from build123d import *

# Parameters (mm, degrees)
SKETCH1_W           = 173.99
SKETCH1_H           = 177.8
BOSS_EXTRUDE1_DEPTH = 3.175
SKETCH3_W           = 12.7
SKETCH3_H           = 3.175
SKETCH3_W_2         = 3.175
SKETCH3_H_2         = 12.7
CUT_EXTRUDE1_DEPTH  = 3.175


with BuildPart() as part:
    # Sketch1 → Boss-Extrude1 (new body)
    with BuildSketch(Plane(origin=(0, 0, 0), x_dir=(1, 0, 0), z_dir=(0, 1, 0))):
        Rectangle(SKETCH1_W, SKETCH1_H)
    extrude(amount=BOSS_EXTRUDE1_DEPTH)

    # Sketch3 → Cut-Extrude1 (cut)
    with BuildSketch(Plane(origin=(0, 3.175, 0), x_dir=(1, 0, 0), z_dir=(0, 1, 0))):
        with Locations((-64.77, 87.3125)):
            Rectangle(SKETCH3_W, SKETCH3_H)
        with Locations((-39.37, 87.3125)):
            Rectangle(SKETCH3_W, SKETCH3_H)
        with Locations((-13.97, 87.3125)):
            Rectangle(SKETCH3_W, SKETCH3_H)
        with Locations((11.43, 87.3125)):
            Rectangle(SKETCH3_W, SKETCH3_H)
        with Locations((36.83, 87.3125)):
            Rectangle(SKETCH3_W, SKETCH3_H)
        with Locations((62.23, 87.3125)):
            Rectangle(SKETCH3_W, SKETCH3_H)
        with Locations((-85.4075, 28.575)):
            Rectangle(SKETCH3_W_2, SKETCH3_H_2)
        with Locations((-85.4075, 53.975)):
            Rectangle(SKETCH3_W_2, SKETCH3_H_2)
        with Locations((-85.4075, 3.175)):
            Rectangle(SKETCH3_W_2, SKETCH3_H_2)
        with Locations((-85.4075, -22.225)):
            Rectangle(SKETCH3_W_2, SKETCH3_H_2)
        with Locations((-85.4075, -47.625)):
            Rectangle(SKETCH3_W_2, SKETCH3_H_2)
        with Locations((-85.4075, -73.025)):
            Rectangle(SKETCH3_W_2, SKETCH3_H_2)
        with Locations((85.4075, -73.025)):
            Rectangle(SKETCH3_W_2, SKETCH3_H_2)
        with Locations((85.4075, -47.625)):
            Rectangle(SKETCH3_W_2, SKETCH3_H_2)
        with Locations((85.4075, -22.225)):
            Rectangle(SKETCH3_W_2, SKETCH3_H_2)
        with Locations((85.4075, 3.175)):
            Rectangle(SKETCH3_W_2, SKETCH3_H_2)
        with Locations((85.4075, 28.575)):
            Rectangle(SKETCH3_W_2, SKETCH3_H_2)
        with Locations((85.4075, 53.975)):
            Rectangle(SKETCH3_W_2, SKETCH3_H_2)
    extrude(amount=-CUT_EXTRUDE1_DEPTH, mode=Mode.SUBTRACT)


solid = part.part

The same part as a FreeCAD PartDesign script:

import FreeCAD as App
import Part
import Sketcher

V = App.Vector
Q = App.Units.Quantity


def add_polygon(sketch, points):
    """Adds a closed chain of lines whose ends are joined by coincident constraints."""
    first, n = sketch.GeometryCount, len(points)
    for a, b in zip(points, points[1:] + points[:1]):
        sketch.addGeometry(Part.LineSegment(App.Vector(*a, 0), App.Vector(*b, 0)), False)
    for i in range(n):
        sketch.addConstraint(Sketcher.Constraint("Coincident", first + i, 2, first + (i + 1) % n, 1))

doc = App.newDocument("Part")
params = doc.addObject("Spreadsheet::Sheet", "Params")
for row, (alias, value) in enumerate([
    ("sketch1_height", "7 in"),
    ("sketch1_width", "6.85 in"),
    ("pad1_length", "0.125 in"),
    ("sketch2_width", "0.5 in"),
    ("sketch2_width2", "0.125 in"),
    ("pocket1_length", "0.125 in"),
], start=1):
    params.set(f"A{row}", alias)
    params.set(f"B{row}", "=" + value)
    params.setAlias(f"B{row}", alias)

body = doc.addObject("PartDesign::Body", "Body")

# Sketch on XZ plane
sketch1 = doc.addObject("Sketcher::SketchObject", "Sketch")
body.addObject(sketch1)
sketch1.AttachmentSupport = (doc.XZ_Plane, [""])
sketch1.MapMode = "FlatFace"
add_polygon(sketch1, [(-86.995, -88.9), (-86.995, 88.9), (86.995, 88.9), (86.995, -88.9)])  # lines 0-3
sketch1.addConstraint([
    Sketcher.Constraint("Vertical", 0),
    Sketcher.Constraint("Horizontal", 1),
    Sketcher.Constraint("Vertical", 2),
    Sketcher.Constraint("Horizontal", 3),
    Sketcher.Constraint("Symmetric", 0, 2, 2, 2, -1, 1),
    Sketcher.Constraint("DistanceY", 0, 1, 0, 2, Q("7 in")),
    Sketcher.Constraint("DistanceX", 1, 1, 1, 2, Q("6.85 in")),
])
sketch1.setExpression("Constraints[9]", "Params.sketch1_height")
sketch1.setExpression("Constraints[10]", "Params.sketch1_width")
pad1 = doc.addObject("PartDesign::Pad", "Pad")
body.addObject(pad1)
pad1.Profile = sketch1
pad1.setExpression("Length", "Params.pad1_length")
pad1.Reversed = True

# Sketch on XZ plane
sketch2 = doc.addObject("Sketcher::SketchObject", "Sketch001")
body.addObject(sketch2)
sketch2.AttachmentSupport = (doc.XZ_Plane, [""])
sketch2.MapMode = "FlatFace"
sketch2.AttachmentOffset = App.Placement(V(0, 0, -0.125 * 25.4), App.Rotation())
add_polygon(sketch2, [(-71.12, -88.9), (-71.12, -85.725), (-58.42, -85.725), (-58.42, -88.9)])  # lines 0-3
add_polygon(sketch2, [(-45.72, -88.9), (-45.72, -85.725), (-33.02, -85.725), (-33.02, -88.9)])  # lines 4-7
add_polygon(sketch2, [(-20.32, -88.9), (-20.32, -85.725), (-7.62, -85.725), (-7.62, -88.9)])  # lines 8-11
add_polygon(sketch2, [(5.08, -88.9), (5.08, -85.725), (17.78, -85.725), (17.78, -88.9)])  # lines 12-15
add_polygon(sketch2, [(30.48, -88.9), (30.48, -85.725), (43.18, -85.725), (43.18, -88.9)])  # lines 16-19
add_polygon(sketch2, [(55.88, -88.9), (55.88, -85.725), (68.58, -85.725), (68.58, -88.9)])  # lines 20-23
add_polygon(sketch2, [(-86.995, -34.925), (-86.995, -22.225), (-83.82, -22.225), (-83.82, -34.925)])  # lines 24-27
add_polygon(sketch2, [(-86.995, -60.325), (-86.995, -47.625), (-83.82, -47.625), (-83.82, -60.325)])  # lines 28-31
add_polygon(sketch2, [(-86.995, -9.525), (-86.995, 3.175), (-83.82, 3.175), (-83.82, -9.525)])  # lines 32-35
add_polygon(sketch2, [(-86.995, 15.875), (-86.995, 28.575), (-83.82, 28.575), (-83.82, 15.875)])  # lines 36-39
add_polygon(sketch2, [(-86.995, 41.275), (-86.995, 53.975), (-83.82, 53.975), (-83.82, 41.275)])  # lines 40-43
add_polygon(sketch2, [(-86.995, 66.675), (-86.995, 79.375), (-83.82, 79.375), (-83.82, 66.675)])  # lines 44-47
add_polygon(sketch2, [(83.82, 66.675), (83.82, 79.375), (86.995, 79.375), (86.995, 66.675)])  # lines 48-51
add_polygon(sketch2, [(83.82, 41.275), (83.82, 53.975), (86.995, 53.975), (86.995, 41.275)])  # lines 52-55
add_polygon(sketch2, [(83.82, 15.875), (83.82, 28.575), (86.995, 28.575), (86.995, 15.875)])  # lines 56-59
add_polygon(sketch2, [(83.82, -9.525), (83.82, 3.175), (86.995, 3.175), (86.995, -9.525)])  # lines 60-63
add_polygon(sketch2, [(83.82, -34.925), (83.82, -22.225), (86.995, -22.225), (86.995, -34.925)])  # lines 64-67
add_polygon(sketch2, [(83.82, -60.325), (83.82, -47.625), (86.995, -47.625), (86.995, -60.325)])  # lines 68-71
sketch2.addConstraint([
    Sketcher.Constraint("Vertical", 0),
    Sketcher.Constraint("Horizontal", 1),
    Sketcher.Constraint("Vertical", 2),
    Sketcher.Constraint("Horizontal", 3),
    Sketcher.Constraint("Vertical", 4),
    Sketcher.Constraint("Horizontal", 5),
    Sketcher.Constraint("Vertical", 6),
    Sketcher.Constraint("Horizontal", 7),
    Sketcher.Constraint("Vertical", 8),
    Sketcher.Constraint("Horizontal", 9),
    Sketcher.Constraint("Vertical", 10),
    Sketcher.Constraint("Horizontal", 11),
    Sketcher.Constraint("Vertical", 12),
    Sketcher.Constraint("Horizontal", 13),
    Sketcher.Constraint("Vertical", 14),
    Sketcher.Constraint("Horizontal", 15),
    Sketcher.Constraint("Vertical", 16),
    Sketcher.Constraint("Horizontal", 17),
    Sketcher.Constraint("Vertical", 18),
    Sketcher.Constraint("Horizontal", 19),
    Sketcher.Constraint("Vertical", 20),
    Sketcher.Constraint("Horizontal", 21),
    Sketcher.Constraint("Vertical", 22),
    Sketcher.Constraint("Horizontal", 23),
    Sketcher.Constraint("Vertical", 24),
    Sketcher.Constraint("Horizontal", 25),
    Sketcher.Constraint("Vertical", 26),
    Sketcher.Constraint("Horizontal", 27),
    Sketcher.Constraint("Vertical", 28),
    Sketcher.Constraint("Horizontal", 29),
    Sketcher.Constraint("Vertical", 30),
    Sketcher.Constraint("Horizontal", 31),
    Sketcher.Constraint("Vertical", 32),
    Sketcher.Constraint("Horizontal", 33),
    Sketcher.Constraint("Vertical", 34),
    Sketcher.Constraint("Horizontal", 35),
    Sketcher.Constraint("Vertical", 36),
    Sketcher.Constraint("Horizontal", 37),
    Sketcher.Constraint("Vertical", 38),
    Sketcher.Constraint("Horizontal", 39),
    Sketcher.Constraint("Vertical", 40),
    Sketcher.Constraint("Horizontal", 41),
    Sketcher.Constraint("Vertical", 42),
    Sketcher.Constraint("Horizontal", 43),
    Sketcher.Constraint("Vertical", 44),
    Sketcher.Constraint("Horizontal", 45),
    Sketcher.Constraint("Vertical", 46),
    Sketcher.Constraint("Horizontal", 47),
    Sketcher.Constraint("Vertical", 48),
    Sketcher.Constraint("Horizontal", 49),
    Sketcher.Constraint("Vertical", 50),
    Sketcher.Constraint("Horizontal", 51),
    Sketcher.Constraint("Vertical", 52),
    Sketcher.Constraint("Horizontal", 53),
    Sketcher.Constraint("Vertical", 54),
    Sketcher.Constraint("Horizontal", 55),
    Sketcher.Constraint("Vertical", 56),
    Sketcher.Constraint("Horizontal", 57),
    Sketcher.Constraint("Vertical", 58),
    Sketcher.Constraint("Horizontal", 59),
    Sketcher.Constraint("Vertical", 60),
    Sketcher.Constraint("Horizontal", 61),
    Sketcher.Constraint("Vertical", 62),
    Sketcher.Constraint("Horizontal", 63),
    Sketcher.Constraint("Vertical", 64),
    Sketcher.Constraint("Horizontal", 65),
    Sketcher.Constraint("Vertical", 66),
    Sketcher.Constraint("Horizontal", 67),
    Sketcher.Constraint("Vertical", 68),
    Sketcher.Constraint("Horizontal", 69),
    Sketcher.Constraint("Vertical", 70),
    Sketcher.Constraint("Horizontal", 71),
    Sketcher.Constraint("Symmetric", 45, 2, 48, 2, -2),
    Sketcher.Constraint("Symmetric", 47, 2, 50, 2, -2),
    Sketcher.Constraint("Symmetric", 41, 2, 52, 2, -2),
    Sketcher.Constraint("Symmetric", 43, 2, 54, 2, -2),
    Sketcher.Constraint("Symmetric", 37, 2, 56, 2, -2),
    Sketcher.Constraint("Symmetric", 39, 2, 58, 2, -2),
    Sketcher.Constraint("Symmetric", 33, 2, 60, 2, -2),
    Sketcher.Constraint("Symmetric", 35, 2, 62, 2, -2),
    Sketcher.Constraint("Symmetric", 25, 2, 64, 2, -2),
    Sketcher.Constraint("Symmetric", 27, 2, 66, 2, -2),
    Sketcher.Constraint("Symmetric", 29, 2, 68, 2, -2),
    Sketcher.Constraint("Symmetric", 31, 2, 70, 2, -2),
    Sketcher.Constraint("Horizontal", 1, 2, 4, 2),
    Sketcher.Constraint("Horizontal", 3, 2, 6, 2),
    Sketcher.Constraint("Horizontal", 5, 2, 8, 2),
    Sketcher.Constraint("Horizontal", 7, 2, 10, 2),
    Sketcher.Constraint("Horizontal", 9, 2, 12, 2),
    Sketcher.Constraint("Horizontal", 11, 2, 14, 2),
    Sketcher.Constraint("Horizontal", 13, 2, 16, 2),
    Sketcher.Constraint("Horizontal", 15, 2, 18, 2),
    Sketcher.Constraint("Horizontal", 17, 2, 20, 2),
    Sketcher.Constraint("Horizontal", 19, 2, 22, 2),
    Sketcher.Constraint("Vertical", 27, 2, 28, 2),
    Sketcher.Constraint("Vertical", 26, 2, 29, 2),
    Sketcher.Constraint("Vertical", 31, 2, 32, 2),
    Sketcher.Constraint("Vertical", 30, 2, 33, 2),
    Sketcher.Constraint("Vertical", 35, 2, 36, 2),
    Sketcher.Constraint("Vertical", 34, 2, 37, 2),
    Sketcher.Constraint("Vertical", 39, 2, 40, 2),
    Sketcher.Constraint("Vertical", 38, 2, 41, 2),
    Sketcher.Constraint("Vertical", 43, 2, 44, 2),
    Sketcher.Constraint("Vertical", 42, 2, 45, 2),
    Sketcher.Constraint("Equal", 3, 5),
    Sketcher.Constraint("Equal", 7, 9),
    Sketcher.Constraint("Equal", 11, 13),
    Sketcher.Constraint("Equal", 15, 17),
    Sketcher.Constraint("Equal", 19, 21),
    Sketcher.Constraint("Equal", 71, 0),
    Sketcher.Constraint("Equal", 23, 24),
    Sketcher.Constraint("Equal", 26, 28),
    Sketcher.Constraint("Equal", 30, 32),
    Sketcher.Constraint("Equal", 34, 36),
    Sketcher.Constraint("Equal", 38, 40),
    Sketcher.Constraint("Equal", 42, 44),
    Sketcher.Constraint("DistanceX", 1, 1, 1, 2, Q("0.5 in")),
    Sketcher.Constraint("DistanceX", 0, 2, -1, 1, Q("2.8 in")),
    Sketcher.Constraint("DistanceY", 2, 2, -1, 1, Q("3.5 in")),
    Sketcher.Constraint("DistanceX", 4, 2, -1, 1, Q("1.8 in")),
    Sketcher.Constraint("DistanceX", 8, 2, -1, 1, Q("0.8 in")),
    Sketcher.Constraint("DistanceX", -1, 1, 12, 2, Q("0.2 in")),
    Sketcher.Constraint("DistanceX", -1, 1, 16, 2, Q("1.2 in")),
    Sketcher.Constraint("DistanceX", -1, 1, 20, 2, Q("2.2 in")),
    Sketcher.Constraint("DistanceX", 25, 2, -1, 1, Q("3.3 in")),
    Sketcher.Constraint("DistanceX", 25, 1, 25, 2, Q("0.125 in")),
    Sketcher.Constraint("DistanceY", 24, 2, -1, 1, Q("0.875 in")),
    Sketcher.Constraint("DistanceY", 28, 2, -1, 1, Q("1.875 in")),
    Sketcher.Constraint("DistanceY", -1, 1, 32, 2, Q("0.125 in")),
    Sketcher.Constraint("DistanceY", -1, 1, 36, 2, Q("1.125 in")),
    Sketcher.Constraint("DistanceY", -1, 1, 40, 2, Q("2.125 in")),
    Sketcher.Constraint("DistanceY", -1, 1, 44, 2, Q("3.125 in")),
])
sketch2.setExpression("Constraints[188]", "Params.sketch2_width")
sketch2.setExpression("Constraints[197]", "Params.sketch2_width2")
pocket1 = doc.addObject("PartDesign::Pocket", "Pocket")
body.addObject(pocket1)
pocket1.Profile = sketch2
pocket1.setExpression("Length", "Params.pocket1_length")
pocket1.Reversed = True

doc.recompute()
